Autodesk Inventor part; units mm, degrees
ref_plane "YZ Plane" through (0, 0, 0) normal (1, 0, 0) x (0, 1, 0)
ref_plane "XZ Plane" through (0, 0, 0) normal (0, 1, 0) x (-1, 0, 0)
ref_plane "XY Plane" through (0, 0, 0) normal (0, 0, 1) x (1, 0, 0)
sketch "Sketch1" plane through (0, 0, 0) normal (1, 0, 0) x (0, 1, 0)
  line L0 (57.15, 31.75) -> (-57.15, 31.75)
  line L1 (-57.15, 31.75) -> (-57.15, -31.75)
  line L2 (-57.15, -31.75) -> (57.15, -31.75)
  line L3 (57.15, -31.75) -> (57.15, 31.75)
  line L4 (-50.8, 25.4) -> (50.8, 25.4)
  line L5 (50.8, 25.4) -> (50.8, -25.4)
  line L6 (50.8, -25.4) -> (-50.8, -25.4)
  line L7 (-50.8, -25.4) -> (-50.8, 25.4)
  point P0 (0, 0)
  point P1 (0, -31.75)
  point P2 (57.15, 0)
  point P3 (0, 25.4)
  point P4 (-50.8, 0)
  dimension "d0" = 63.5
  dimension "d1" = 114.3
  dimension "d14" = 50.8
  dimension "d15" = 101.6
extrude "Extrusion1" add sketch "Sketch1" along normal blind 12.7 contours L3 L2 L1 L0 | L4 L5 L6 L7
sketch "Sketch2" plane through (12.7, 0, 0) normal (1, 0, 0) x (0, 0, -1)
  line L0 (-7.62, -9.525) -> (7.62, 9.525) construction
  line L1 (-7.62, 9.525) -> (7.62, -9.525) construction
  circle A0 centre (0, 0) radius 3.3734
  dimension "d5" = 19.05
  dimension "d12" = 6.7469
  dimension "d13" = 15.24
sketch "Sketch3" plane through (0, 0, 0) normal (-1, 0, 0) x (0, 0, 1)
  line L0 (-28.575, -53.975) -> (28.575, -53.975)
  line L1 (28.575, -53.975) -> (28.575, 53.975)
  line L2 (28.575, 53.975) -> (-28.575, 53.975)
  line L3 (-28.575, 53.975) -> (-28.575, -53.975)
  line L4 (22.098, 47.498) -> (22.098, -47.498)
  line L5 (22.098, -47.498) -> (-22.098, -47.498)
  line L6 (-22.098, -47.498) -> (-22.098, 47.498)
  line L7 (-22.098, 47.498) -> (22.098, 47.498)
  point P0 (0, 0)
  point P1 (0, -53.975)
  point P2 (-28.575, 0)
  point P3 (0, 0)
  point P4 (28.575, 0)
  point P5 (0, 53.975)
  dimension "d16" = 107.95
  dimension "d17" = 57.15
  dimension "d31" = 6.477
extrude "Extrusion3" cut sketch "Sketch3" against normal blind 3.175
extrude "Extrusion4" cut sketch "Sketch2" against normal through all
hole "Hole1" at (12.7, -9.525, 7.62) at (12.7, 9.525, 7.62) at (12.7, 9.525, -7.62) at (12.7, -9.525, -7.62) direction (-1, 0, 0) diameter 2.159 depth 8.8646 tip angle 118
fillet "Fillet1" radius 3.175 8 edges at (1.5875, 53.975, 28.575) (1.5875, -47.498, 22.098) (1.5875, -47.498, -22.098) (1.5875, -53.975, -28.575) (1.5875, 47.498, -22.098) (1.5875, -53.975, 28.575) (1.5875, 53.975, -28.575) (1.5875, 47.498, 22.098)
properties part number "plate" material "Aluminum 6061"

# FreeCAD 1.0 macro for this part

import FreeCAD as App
import Part
import Sketcher
Q = App.Units.Quantity


def edges_at(feature, points):
    """Names of the edges that pass closest to the given points."""
    edges = feature.Shape.Edges
    near = lambda p: min(range(len(edges)), key=lambda i: edges[i].distToShape(Part.Vertex(*p))[0])
    return sorted({f"Edge{near(p) + 1}" for p in points})


def add_polygon(sketch, points):
    """Adds a closed chain of lines whose ends are joined by coincident constraints."""
    first, n = sketch.GeometryCount, len(points)
    for a, b in zip(points, points[1:] + points[:1]):
        sketch.addGeometry(Part.LineSegment(App.Vector(*a, 0), App.Vector(*b, 0)), False)
    for i in range(n):
        sketch.addConstraint(Sketcher.Constraint("Coincident", first + i, 2, first + (i + 1) % n, 1))

doc = App.newDocument("Part")
body = doc.addObject("PartDesign::Body", "Body")

# Sketch on YZ plane
sketch1 = doc.addObject("Sketcher::SketchObject", "Sketch")
body.addObject(sketch1)
sketch1.AttachmentSupport = (doc.YZ_Plane, [""])
sketch1.MapMode = "FlatFace"
add_polygon(sketch1, [(57, -32), (57, 32), (-57, 32), (-57, -32)])  # lines 0-3
sketch1.addConstraint([
    Sketcher.Constraint("Vertical", 0),
    Sketcher.Constraint("Horizontal", 1),
    Sketcher.Constraint("Vertical", 2),
    Sketcher.Constraint("Horizontal", 3),
    Sketcher.Constraint("Symmetric", 0, 2, 2, 2, -1, 1),
    Sketcher.Constraint("DistanceX", 1, 2, 1, 1, Q("4.5 in")),
    Sketcher.Constraint("DistanceY", 0, 1, 0, 2, Q("2.5 in")),
])
pad1 = doc.addObject("PartDesign::Pad", "Pad")
body.addObject(pad1)
pad1.Profile = sketch1
pad1.Length = Q("0.5 in")

# Sketch on YZ plane
sketch2 = doc.addObject("Sketcher::SketchObject", "Sketch001")
body.addObject(sketch2)
sketch2.AttachmentSupport = (doc.YZ_Plane, [""])
sketch2.MapMode = "FlatFace"
add_polygon(sketch2, [(54, -29), (-54, -29), (-54, 29), (54, 29)])  # lines 0-3
add_polygon(sketch2, [(47, -22), (47, 22), (-47, 22), (-47, -22)])  # lines 4-7
sketch2.addConstraint([
    Sketcher.Constraint("Horizontal", 0),
    Sketcher.Constraint("Vertical", 1),
    Sketcher.Constraint("Horizontal", 2),
    Sketcher.Constraint("Vertical", 3),
    Sketcher.Constraint("Vertical", 4),
    Sketcher.Constraint("Horizontal", 5),
    Sketcher.Constraint("Vertical", 6),
    Sketcher.Constraint("Horizontal", 7),
    Sketcher.Constraint("Symmetric", 0, 2, 2, 2, -1, 1),
    Sketcher.Constraint("Symmetric", 4, 2, 6, 2, -1, 1),
    Sketcher.Constraint("DistanceX", 0, 2, 0, 1, Q("4.25 in")),
    Sketcher.Constraint("DistanceY", 1, 1, 1, 2, Q("2.25 in")),
    Sketcher.Constraint("DistanceX", 4, 2, 2, 2, Q("0.255 in")),
    Sketcher.Constraint("DistanceY", 4, 2, 2, 2, Q("0.255 in")),
])
pocket1 = doc.addObject("PartDesign::Pocket", "Pocket")
body.addObject(pocket1)
pocket1.Profile = sketch2
pocket1.Length = Q("0.125 in")
pocket1.Reversed = True

# Sketch on YZ plane
sketch3 = doc.addObject("Sketcher::SketchObject", "Sketch002")
body.addObject(sketch3)
sketch3.AttachmentSupport = (doc.YZ_Plane, [""])
sketch3.MapMode = "FlatFace"
sketch3.AttachmentOffset = App.Placement(App.Vector(0, 0, 0.5 * 25.4), App.Rotation())
sketch3.addGeometry(Part.Circle(App.Vector(0, 0, 0), App.Vector(0, 0, 1), 3.4), False)
sketch3.addConstraint([
    Sketcher.Constraint("Coincident", 0, 3, -1, 1),
    Sketcher.Constraint("Diameter", 0, Q("0.265622 in")),
])
pocket2 = doc.addObject("PartDesign::Pocket", "Pocket001")
body.addObject(pocket2)
pocket2.Profile = sketch3
pocket2.Type = "ThroughAll"

# Sketch on YZ plane
sketch4 = doc.addObject("Sketcher::SketchObject", "Sketch003")
body.addObject(sketch4)
sketch4.AttachmentSupport = (doc.YZ_Plane, [""])
sketch4.MapMode = "FlatFace"
sketch4.AttachmentOffset = App.Placement(App.Vector(0, 0, 0.5 * 25.4), App.Rotation())
sketch4.addGeometry([
    Part.Circle(App.Vector(-9.5, 7.6, 0), App.Vector(0, 0, 1), 1.1),
    Part.Circle(App.Vector(9.5, 7.6, 0), App.Vector(0, 0, 1), 1.1),
    Part.Circle(App.Vector(9.5, -7.6, 0), App.Vector(0, 0, 1), 1.1),
    Part.Circle(App.Vector(-9.5, -7.6, 0), App.Vector(0, 0, 1), 1.1),
], False)
sketch4.addConstraint([
    Sketcher.Constraint("Equal", 0, 1),
    Sketcher.Constraint("Equal", 1, 2),
    Sketcher.Constraint("Equal", 2, 3),
    Sketcher.Constraint("Symmetric", 0, 3, 2, 3, -1, 1),
    Sketcher.Constraint("Symmetric", 1, 3, 3, 3, -1, 1),
    Sketcher.Constraint("Symmetric", 0, 3, 1, 3, -2),
    Sketcher.Constraint("Diameter", 0, Q("0.085 in")),
    Sketcher.Constraint("DistanceY", -1, 1, 0, 3, Q("0.3 in")),
    Sketcher.Constraint("DistanceX", 0, 3, 1, 3, Q("0.75 in")),
])
doc.recompute()
hole = doc.addObject("PartDesign::Hole", "Hole")
body.addObject(hole)
hole.Profile = sketch4
hole.ThreadType = "None"
hole.Diameter = Q("0.085 in")
hole.DepthType = "Dimension"
hole.Depth = Q("0.349 in")
hole.DrillPoint = "Angled"
hole.DrillPointAngle = 118
doc.recompute()

fillet = doc.addObject("PartDesign::Fillet", "Fillet")
body.addObject(fillet)
fillet.Base = (hole, edges_at(hole, [
    (1.587, 53.975, 28.575),
    (1.587, -47.498, 22.098),
    (1.587, -47.498, -22.098),
    (1.587, -53.975, -28.575),
    (1.587, 47.498, -22.098),
    (1.587, -53.975, 28.575),
    (1.587, 53.975, -28.575),
    (1.587, 47.498, 22.098),
]))
fillet.Radius = Q("0.125 in")

doc.recompute()
